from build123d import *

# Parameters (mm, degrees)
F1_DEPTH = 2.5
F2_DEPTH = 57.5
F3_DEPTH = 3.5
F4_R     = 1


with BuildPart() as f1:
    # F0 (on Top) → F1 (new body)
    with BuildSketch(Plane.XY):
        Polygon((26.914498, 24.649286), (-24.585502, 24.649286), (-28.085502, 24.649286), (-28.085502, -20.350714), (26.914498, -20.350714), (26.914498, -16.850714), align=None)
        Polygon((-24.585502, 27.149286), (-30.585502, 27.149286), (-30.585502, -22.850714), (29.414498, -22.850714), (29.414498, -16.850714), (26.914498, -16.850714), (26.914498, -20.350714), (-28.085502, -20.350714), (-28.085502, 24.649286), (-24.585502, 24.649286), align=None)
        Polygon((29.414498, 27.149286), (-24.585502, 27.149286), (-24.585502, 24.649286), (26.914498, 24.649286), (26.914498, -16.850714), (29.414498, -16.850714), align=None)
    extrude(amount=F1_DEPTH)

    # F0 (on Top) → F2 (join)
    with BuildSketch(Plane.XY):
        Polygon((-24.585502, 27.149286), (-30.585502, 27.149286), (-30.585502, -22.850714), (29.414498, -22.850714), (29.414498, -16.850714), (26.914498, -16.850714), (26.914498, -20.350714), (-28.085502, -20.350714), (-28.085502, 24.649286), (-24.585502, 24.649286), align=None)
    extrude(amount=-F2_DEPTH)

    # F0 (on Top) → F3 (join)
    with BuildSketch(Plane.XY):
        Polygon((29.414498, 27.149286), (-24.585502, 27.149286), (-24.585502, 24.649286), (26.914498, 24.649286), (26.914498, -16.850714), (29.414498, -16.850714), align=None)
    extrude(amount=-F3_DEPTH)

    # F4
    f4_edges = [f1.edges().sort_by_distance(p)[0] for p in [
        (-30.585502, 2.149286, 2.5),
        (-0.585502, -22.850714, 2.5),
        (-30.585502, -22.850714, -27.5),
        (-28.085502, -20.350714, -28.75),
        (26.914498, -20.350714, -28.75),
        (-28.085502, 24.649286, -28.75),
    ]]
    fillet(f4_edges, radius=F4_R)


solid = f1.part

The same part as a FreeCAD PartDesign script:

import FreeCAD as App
import Part
import Sketcher
from FreeCAD import Vector


def edges_at(feature, points):
    """Names of the edges that pass closest to the given points."""
    edges = feature.Shape.Edges
    near = lambda p: min(range(len(edges)), key=lambda i: edges[i].distToShape(Part.Vertex(*p))[0])
    return sorted({f"Edge{near(p) + 1}" for p in points})

doc = App.newDocument("Part")
body = doc.addObject("PartDesign::Body", "Body")

sketch1 = body.newObject("Sketcher::SketchObject", "Sketch")
sketch1.AttachmentSupport = (doc.getObject("XY_Plane"), [""])
sketch1.MapMode = "FlatFace"
sketch1.addGeometry(Part.LineSegment(Vector(-30.585502, 27.149286, 0), Vector(-30.585502, -22.850714, 0)), False)
sketch1.addGeometry(Part.LineSegment(Vector(-30.585502, -22.850714, 0), Vector(29.414498, -22.850714, 0)), False)
sketch1.addGeometry(Part.LineSegment(Vector(29.414498, -22.850714, 0), Vector(29.414498, 27.149286, 0)), False)
sketch1.addGeometry(Part.LineSegment(Vector(29.414498, 27.149286, 0), Vector(-30.585502, 27.149286, 0)), False)
sketch1.addConstraint(Sketcher.Constraint("Coincident", 0, 2, 1, 1))
sketch1.addConstraint(Sketcher.Constraint("Coincident", 1, 2, 2, 1))
sketch1.addConstraint(Sketcher.Constraint("Coincident", 2, 2, 3, 1))
sketch1.addConstraint(Sketcher.Constraint("Coincident", 3, 2, 0, 1))
sketch1.addConstraint(Sketcher.Constraint("Vertical", 0))
sketch1.addConstraint(Sketcher.Constraint("Horizontal", 1))
sketch1.addConstraint(Sketcher.Constraint("Vertical", 2))
sketch1.addConstraint(Sketcher.Constraint("Horizontal", 3))
sketch1.addConstraint(Sketcher.Constraint("DistanceX", 1, 1, 1, 2, 60.0))
sketch1.addConstraint(Sketcher.Constraint("DistanceY", 0, 2, 0, 1, 50.0))
sketch1.addConstraint(Sketcher.Constraint("DistanceX", 0, 2, -1, 1, 30.585502))
sketch1.addConstraint(Sketcher.Constraint("DistanceY", 0, 2, -1, 1, 22.850714))
pad1 = body.newObject("PartDesign::Pad", "Pad")
pad1.Profile = sketch1
pad1.Length = 2.5

sketch2 = body.newObject("Sketcher::SketchObject", "Sketch001")
sketch2.AttachmentSupport = (doc.getObject("XY_Plane"), [""])
sketch2.MapMode = "FlatFace"
sketch2.addGeometry(Part.LineSegment(Vector(-24.585502, 27.149286, 0), Vector(-30.585502, 27.149286, 0)), False)
sketch2.addGeometry(Part.LineSegment(Vector(-30.585502, 27.149286, 0), Vector(-30.585502, -22.850714, 0)), False)
sketch2.addGeometry(Part.LineSegment(Vector(-30.585502, -22.850714, 0), Vector(29.414498, -22.850714, 0)), False)
sketch2.addGeometry(Part.LineSegment(Vector(29.414498, -22.850714, 0), Vector(29.414498, -16.850714, 0)), False)
sketch2.addGeometry(Part.LineSegment(Vector(29.414498, -16.850714, 0), Vector(26.914498, -16.850714, 0)), False)
sketch2.addGeometry(Part.LineSegment(Vector(26.914498, -16.850714, 0), Vector(26.914498, -20.350714, 0)), False)
sketch2.addGeometry(Part.LineSegment(Vector(26.914498, -20.350714, 0), Vector(-28.085502, -20.350714, 0)), False)
sketch2.addGeometry(Part.LineSegment(Vector(-28.085502, -20.350714, 0), Vector(-28.085502, 24.649286, 0)), False)
sketch2.addGeometry(Part.LineSegment(Vector(-28.085502, 24.649286, 0), Vector(-24.585502, 24.649286, 0)), False)
sketch2.addGeometry(Part.LineSegment(Vector(-24.585502, 24.649286, 0), Vector(-24.585502, 27.149286, 0)), False)
sketch2.addConstraint(Sketcher.Constraint("Coincident", 0, 2, 1, 1))
sketch2.addConstraint(Sketcher.Constraint("Coincident", 1, 2, 2, 1))
sketch2.addConstraint(Sketcher.Constraint("Coincident", 2, 2, 3, 1))
sketch2.addConstraint(Sketcher.Constraint("Coincident", 3, 2, 4, 1))
sketch2.addConstraint(Sketcher.Constraint("Coincident", 4, 2, 5, 1))
sketch2.addConstraint(Sketcher.Constraint("Coincident", 5, 2, 6, 1))
sketch2.addConstraint(Sketcher.Constraint("Coincident", 6, 2, 7, 1))
sketch2.addConstraint(Sketcher.Constraint("Coincident", 7, 2, 8, 1))
sketch2.addConstraint(Sketcher.Constraint("Coincident", 8, 2, 9, 1))
sketch2.addConstraint(Sketcher.Constraint("Coincident", 9, 2, 0, 1))
sketch2.addConstraint(Sketcher.Constraint("Horizontal", 0))
sketch2.addConstraint(Sketcher.Constraint("Vertical", 1))
sketch2.addConstraint(Sketcher.Constraint("Horizontal", 2))
sketch2.addConstraint(Sketcher.Constraint("Vertical", 3))
sketch2.addConstraint(Sketcher.Constraint("Horizontal", 4))
sketch2.addConstraint(Sketcher.Constraint("Vertical", 5))
sketch2.addConstraint(Sketcher.Constraint("Horizontal", 6))
sketch2.addConstraint(Sketcher.Constraint("Vertical", 7))
sketch2.addConstraint(Sketcher.Constraint("Horizontal", 8))
sketch2.addConstraint(Sketcher.Constraint("Vertical", 9))
sketch2.addConstraint(Sketcher.Constraint("Equal", 0, 3))
sketch2.addConstraint(Sketcher.Constraint("Equal", 8, 5))
sketch2.addConstraint(Sketcher.Constraint("Equal", 4, 9))
sketch2.addConstraint(Sketcher.Constraint("DistanceX", 0, 2, 0, 1, 6.0))
sketch2.addConstraint(Sketcher.Constraint("DistanceX", 2, 1, 2, 2, 60.0))
sketch2.addConstraint(Sketcher.Constraint("DistanceX", 6, 2, 6, 1, 55.0))
sketch2.addConstraint(Sketcher.Constraint("DistanceY", 1, 2, 1, 1, 50.0))
sketch2.addConstraint(Sketcher.Constraint("DistanceX", 4, 2, 4, 1, 2.5))
sketch2.addConstraint(Sketcher.Constraint("DistanceX", 0, 2, -1, 1, 30.585502))
sketch2.addConstraint(Sketcher.Constraint("DistanceY", -1, 1, 0, 2, 27.149286))
pad2 = body.newObject("PartDesign::Pad", "Pad001")
pad2.Profile = sketch2
pad2.Length = 57.5
pad2.Reversed = True

sketch3 = body.newObject("Sketcher::SketchObject", "Sketch002")
sketch3.AttachmentSupport = (doc.getObject("XY_Plane"), [""])
sketch3.MapMode = "FlatFace"
sketch3.addGeometry(Part.LineSegment(Vector(29.414498, 27.149286, 0), Vector(-24.585502, 27.149286, 0)), False)
sketch3.addGeometry(Part.LineSegment(Vector(-24.585502, 27.149286, 0), Vector(-24.585502, 24.649286, 0)), False)
sketch3.addGeometry(Part.LineSegment(Vector(-24.585502, 24.649286, 0), Vector(26.914498, 24.649286, 0)), False)
sketch3.addGeometry(Part.LineSegment(Vector(26.914498, 24.649286, 0), Vector(26.914498, -16.850714, 0)), False)
sketch3.addGeometry(Part.LineSegment(Vector(26.914498, -16.850714, 0), Vector(29.414498, -16.850714, 0)), False)
sketch3.addGeometry(Part.LineSegment(Vector(29.414498, -16.850714, 0), Vector(29.414498, 27.149286, 0)), False)
sketch3.addConstraint(Sketcher.Constraint("Coincident", 0, 2, 1, 1))
sketch3.addConstraint(Sketcher.Constraint("Coincident", 1, 2, 2, 1))
sketch3.addConstraint(Sketcher.Constraint("Coincident", 2, 2, 3, 1))
sketch3.addConstraint(Sketcher.Constraint("Coincident", 3, 2, 4, 1))
sketch3.addConstraint(Sketcher.Constraint("Coincident", 4, 2, 5, 1))
sketch3.addConstraint(Sketcher.Constraint("Coincident", 5, 2, 0, 1))
sketch3.addConstraint(Sketcher.Constraint("Horizontal", 0))
sketch3.addConstraint(Sketcher.Constraint("Vertical", 1))
sketch3.addConstraint(Sketcher.Constraint("Horizontal", 2))
sketch3.addConstraint(Sketcher.Constraint("Vertical", 3))
sketch3.addConstraint(Sketcher.Constraint("Horizontal", 4))
sketch3.addConstraint(Sketcher.Constraint("Vertical", 5))
sketch3.addConstraint(Sketcher.Constraint("Equal", 4, 1))
sketch3.addConstraint(Sketcher.Constraint("DistanceX", 0, 2, 0, 1, 54.0))
sketch3.addConstraint(Sketcher.Constraint("DistanceY", 5, 1, 5, 2, 44.0))
sketch3.addConstraint(Sketcher.Constraint("DistanceX", 2, 1, 2, 2, 51.5))
sketch3.addConstraint(Sketcher.Constraint("DistanceX", 0, 2, -1, 1, 24.585502))
sketch3.addConstraint(Sketcher.Constraint("DistanceY", -1, 1, 0, 2, 27.149286))
pad3 = body.newObject("PartDesign::Pad", "Pad002")
pad3.Profile = sketch3
pad3.Length = 3.5
pad3.Reversed = True
doc.recompute()

fillet = body.newObject("PartDesign::Fillet", "Fillet")
fillet.Base = (pad3, edges_at(pad3, [
    (-30.586, 2.149, 2.5),
    (-0.586, -22.851, 2.5),
    (-30.586, -22.851, -27.5),
    (-28.086, -20.351, -28.75),
    (26.914, -20.351, -28.75),
    (-28.086, 24.649, -28.75),
]))
fillet.Radius = 1

doc.recompute()
